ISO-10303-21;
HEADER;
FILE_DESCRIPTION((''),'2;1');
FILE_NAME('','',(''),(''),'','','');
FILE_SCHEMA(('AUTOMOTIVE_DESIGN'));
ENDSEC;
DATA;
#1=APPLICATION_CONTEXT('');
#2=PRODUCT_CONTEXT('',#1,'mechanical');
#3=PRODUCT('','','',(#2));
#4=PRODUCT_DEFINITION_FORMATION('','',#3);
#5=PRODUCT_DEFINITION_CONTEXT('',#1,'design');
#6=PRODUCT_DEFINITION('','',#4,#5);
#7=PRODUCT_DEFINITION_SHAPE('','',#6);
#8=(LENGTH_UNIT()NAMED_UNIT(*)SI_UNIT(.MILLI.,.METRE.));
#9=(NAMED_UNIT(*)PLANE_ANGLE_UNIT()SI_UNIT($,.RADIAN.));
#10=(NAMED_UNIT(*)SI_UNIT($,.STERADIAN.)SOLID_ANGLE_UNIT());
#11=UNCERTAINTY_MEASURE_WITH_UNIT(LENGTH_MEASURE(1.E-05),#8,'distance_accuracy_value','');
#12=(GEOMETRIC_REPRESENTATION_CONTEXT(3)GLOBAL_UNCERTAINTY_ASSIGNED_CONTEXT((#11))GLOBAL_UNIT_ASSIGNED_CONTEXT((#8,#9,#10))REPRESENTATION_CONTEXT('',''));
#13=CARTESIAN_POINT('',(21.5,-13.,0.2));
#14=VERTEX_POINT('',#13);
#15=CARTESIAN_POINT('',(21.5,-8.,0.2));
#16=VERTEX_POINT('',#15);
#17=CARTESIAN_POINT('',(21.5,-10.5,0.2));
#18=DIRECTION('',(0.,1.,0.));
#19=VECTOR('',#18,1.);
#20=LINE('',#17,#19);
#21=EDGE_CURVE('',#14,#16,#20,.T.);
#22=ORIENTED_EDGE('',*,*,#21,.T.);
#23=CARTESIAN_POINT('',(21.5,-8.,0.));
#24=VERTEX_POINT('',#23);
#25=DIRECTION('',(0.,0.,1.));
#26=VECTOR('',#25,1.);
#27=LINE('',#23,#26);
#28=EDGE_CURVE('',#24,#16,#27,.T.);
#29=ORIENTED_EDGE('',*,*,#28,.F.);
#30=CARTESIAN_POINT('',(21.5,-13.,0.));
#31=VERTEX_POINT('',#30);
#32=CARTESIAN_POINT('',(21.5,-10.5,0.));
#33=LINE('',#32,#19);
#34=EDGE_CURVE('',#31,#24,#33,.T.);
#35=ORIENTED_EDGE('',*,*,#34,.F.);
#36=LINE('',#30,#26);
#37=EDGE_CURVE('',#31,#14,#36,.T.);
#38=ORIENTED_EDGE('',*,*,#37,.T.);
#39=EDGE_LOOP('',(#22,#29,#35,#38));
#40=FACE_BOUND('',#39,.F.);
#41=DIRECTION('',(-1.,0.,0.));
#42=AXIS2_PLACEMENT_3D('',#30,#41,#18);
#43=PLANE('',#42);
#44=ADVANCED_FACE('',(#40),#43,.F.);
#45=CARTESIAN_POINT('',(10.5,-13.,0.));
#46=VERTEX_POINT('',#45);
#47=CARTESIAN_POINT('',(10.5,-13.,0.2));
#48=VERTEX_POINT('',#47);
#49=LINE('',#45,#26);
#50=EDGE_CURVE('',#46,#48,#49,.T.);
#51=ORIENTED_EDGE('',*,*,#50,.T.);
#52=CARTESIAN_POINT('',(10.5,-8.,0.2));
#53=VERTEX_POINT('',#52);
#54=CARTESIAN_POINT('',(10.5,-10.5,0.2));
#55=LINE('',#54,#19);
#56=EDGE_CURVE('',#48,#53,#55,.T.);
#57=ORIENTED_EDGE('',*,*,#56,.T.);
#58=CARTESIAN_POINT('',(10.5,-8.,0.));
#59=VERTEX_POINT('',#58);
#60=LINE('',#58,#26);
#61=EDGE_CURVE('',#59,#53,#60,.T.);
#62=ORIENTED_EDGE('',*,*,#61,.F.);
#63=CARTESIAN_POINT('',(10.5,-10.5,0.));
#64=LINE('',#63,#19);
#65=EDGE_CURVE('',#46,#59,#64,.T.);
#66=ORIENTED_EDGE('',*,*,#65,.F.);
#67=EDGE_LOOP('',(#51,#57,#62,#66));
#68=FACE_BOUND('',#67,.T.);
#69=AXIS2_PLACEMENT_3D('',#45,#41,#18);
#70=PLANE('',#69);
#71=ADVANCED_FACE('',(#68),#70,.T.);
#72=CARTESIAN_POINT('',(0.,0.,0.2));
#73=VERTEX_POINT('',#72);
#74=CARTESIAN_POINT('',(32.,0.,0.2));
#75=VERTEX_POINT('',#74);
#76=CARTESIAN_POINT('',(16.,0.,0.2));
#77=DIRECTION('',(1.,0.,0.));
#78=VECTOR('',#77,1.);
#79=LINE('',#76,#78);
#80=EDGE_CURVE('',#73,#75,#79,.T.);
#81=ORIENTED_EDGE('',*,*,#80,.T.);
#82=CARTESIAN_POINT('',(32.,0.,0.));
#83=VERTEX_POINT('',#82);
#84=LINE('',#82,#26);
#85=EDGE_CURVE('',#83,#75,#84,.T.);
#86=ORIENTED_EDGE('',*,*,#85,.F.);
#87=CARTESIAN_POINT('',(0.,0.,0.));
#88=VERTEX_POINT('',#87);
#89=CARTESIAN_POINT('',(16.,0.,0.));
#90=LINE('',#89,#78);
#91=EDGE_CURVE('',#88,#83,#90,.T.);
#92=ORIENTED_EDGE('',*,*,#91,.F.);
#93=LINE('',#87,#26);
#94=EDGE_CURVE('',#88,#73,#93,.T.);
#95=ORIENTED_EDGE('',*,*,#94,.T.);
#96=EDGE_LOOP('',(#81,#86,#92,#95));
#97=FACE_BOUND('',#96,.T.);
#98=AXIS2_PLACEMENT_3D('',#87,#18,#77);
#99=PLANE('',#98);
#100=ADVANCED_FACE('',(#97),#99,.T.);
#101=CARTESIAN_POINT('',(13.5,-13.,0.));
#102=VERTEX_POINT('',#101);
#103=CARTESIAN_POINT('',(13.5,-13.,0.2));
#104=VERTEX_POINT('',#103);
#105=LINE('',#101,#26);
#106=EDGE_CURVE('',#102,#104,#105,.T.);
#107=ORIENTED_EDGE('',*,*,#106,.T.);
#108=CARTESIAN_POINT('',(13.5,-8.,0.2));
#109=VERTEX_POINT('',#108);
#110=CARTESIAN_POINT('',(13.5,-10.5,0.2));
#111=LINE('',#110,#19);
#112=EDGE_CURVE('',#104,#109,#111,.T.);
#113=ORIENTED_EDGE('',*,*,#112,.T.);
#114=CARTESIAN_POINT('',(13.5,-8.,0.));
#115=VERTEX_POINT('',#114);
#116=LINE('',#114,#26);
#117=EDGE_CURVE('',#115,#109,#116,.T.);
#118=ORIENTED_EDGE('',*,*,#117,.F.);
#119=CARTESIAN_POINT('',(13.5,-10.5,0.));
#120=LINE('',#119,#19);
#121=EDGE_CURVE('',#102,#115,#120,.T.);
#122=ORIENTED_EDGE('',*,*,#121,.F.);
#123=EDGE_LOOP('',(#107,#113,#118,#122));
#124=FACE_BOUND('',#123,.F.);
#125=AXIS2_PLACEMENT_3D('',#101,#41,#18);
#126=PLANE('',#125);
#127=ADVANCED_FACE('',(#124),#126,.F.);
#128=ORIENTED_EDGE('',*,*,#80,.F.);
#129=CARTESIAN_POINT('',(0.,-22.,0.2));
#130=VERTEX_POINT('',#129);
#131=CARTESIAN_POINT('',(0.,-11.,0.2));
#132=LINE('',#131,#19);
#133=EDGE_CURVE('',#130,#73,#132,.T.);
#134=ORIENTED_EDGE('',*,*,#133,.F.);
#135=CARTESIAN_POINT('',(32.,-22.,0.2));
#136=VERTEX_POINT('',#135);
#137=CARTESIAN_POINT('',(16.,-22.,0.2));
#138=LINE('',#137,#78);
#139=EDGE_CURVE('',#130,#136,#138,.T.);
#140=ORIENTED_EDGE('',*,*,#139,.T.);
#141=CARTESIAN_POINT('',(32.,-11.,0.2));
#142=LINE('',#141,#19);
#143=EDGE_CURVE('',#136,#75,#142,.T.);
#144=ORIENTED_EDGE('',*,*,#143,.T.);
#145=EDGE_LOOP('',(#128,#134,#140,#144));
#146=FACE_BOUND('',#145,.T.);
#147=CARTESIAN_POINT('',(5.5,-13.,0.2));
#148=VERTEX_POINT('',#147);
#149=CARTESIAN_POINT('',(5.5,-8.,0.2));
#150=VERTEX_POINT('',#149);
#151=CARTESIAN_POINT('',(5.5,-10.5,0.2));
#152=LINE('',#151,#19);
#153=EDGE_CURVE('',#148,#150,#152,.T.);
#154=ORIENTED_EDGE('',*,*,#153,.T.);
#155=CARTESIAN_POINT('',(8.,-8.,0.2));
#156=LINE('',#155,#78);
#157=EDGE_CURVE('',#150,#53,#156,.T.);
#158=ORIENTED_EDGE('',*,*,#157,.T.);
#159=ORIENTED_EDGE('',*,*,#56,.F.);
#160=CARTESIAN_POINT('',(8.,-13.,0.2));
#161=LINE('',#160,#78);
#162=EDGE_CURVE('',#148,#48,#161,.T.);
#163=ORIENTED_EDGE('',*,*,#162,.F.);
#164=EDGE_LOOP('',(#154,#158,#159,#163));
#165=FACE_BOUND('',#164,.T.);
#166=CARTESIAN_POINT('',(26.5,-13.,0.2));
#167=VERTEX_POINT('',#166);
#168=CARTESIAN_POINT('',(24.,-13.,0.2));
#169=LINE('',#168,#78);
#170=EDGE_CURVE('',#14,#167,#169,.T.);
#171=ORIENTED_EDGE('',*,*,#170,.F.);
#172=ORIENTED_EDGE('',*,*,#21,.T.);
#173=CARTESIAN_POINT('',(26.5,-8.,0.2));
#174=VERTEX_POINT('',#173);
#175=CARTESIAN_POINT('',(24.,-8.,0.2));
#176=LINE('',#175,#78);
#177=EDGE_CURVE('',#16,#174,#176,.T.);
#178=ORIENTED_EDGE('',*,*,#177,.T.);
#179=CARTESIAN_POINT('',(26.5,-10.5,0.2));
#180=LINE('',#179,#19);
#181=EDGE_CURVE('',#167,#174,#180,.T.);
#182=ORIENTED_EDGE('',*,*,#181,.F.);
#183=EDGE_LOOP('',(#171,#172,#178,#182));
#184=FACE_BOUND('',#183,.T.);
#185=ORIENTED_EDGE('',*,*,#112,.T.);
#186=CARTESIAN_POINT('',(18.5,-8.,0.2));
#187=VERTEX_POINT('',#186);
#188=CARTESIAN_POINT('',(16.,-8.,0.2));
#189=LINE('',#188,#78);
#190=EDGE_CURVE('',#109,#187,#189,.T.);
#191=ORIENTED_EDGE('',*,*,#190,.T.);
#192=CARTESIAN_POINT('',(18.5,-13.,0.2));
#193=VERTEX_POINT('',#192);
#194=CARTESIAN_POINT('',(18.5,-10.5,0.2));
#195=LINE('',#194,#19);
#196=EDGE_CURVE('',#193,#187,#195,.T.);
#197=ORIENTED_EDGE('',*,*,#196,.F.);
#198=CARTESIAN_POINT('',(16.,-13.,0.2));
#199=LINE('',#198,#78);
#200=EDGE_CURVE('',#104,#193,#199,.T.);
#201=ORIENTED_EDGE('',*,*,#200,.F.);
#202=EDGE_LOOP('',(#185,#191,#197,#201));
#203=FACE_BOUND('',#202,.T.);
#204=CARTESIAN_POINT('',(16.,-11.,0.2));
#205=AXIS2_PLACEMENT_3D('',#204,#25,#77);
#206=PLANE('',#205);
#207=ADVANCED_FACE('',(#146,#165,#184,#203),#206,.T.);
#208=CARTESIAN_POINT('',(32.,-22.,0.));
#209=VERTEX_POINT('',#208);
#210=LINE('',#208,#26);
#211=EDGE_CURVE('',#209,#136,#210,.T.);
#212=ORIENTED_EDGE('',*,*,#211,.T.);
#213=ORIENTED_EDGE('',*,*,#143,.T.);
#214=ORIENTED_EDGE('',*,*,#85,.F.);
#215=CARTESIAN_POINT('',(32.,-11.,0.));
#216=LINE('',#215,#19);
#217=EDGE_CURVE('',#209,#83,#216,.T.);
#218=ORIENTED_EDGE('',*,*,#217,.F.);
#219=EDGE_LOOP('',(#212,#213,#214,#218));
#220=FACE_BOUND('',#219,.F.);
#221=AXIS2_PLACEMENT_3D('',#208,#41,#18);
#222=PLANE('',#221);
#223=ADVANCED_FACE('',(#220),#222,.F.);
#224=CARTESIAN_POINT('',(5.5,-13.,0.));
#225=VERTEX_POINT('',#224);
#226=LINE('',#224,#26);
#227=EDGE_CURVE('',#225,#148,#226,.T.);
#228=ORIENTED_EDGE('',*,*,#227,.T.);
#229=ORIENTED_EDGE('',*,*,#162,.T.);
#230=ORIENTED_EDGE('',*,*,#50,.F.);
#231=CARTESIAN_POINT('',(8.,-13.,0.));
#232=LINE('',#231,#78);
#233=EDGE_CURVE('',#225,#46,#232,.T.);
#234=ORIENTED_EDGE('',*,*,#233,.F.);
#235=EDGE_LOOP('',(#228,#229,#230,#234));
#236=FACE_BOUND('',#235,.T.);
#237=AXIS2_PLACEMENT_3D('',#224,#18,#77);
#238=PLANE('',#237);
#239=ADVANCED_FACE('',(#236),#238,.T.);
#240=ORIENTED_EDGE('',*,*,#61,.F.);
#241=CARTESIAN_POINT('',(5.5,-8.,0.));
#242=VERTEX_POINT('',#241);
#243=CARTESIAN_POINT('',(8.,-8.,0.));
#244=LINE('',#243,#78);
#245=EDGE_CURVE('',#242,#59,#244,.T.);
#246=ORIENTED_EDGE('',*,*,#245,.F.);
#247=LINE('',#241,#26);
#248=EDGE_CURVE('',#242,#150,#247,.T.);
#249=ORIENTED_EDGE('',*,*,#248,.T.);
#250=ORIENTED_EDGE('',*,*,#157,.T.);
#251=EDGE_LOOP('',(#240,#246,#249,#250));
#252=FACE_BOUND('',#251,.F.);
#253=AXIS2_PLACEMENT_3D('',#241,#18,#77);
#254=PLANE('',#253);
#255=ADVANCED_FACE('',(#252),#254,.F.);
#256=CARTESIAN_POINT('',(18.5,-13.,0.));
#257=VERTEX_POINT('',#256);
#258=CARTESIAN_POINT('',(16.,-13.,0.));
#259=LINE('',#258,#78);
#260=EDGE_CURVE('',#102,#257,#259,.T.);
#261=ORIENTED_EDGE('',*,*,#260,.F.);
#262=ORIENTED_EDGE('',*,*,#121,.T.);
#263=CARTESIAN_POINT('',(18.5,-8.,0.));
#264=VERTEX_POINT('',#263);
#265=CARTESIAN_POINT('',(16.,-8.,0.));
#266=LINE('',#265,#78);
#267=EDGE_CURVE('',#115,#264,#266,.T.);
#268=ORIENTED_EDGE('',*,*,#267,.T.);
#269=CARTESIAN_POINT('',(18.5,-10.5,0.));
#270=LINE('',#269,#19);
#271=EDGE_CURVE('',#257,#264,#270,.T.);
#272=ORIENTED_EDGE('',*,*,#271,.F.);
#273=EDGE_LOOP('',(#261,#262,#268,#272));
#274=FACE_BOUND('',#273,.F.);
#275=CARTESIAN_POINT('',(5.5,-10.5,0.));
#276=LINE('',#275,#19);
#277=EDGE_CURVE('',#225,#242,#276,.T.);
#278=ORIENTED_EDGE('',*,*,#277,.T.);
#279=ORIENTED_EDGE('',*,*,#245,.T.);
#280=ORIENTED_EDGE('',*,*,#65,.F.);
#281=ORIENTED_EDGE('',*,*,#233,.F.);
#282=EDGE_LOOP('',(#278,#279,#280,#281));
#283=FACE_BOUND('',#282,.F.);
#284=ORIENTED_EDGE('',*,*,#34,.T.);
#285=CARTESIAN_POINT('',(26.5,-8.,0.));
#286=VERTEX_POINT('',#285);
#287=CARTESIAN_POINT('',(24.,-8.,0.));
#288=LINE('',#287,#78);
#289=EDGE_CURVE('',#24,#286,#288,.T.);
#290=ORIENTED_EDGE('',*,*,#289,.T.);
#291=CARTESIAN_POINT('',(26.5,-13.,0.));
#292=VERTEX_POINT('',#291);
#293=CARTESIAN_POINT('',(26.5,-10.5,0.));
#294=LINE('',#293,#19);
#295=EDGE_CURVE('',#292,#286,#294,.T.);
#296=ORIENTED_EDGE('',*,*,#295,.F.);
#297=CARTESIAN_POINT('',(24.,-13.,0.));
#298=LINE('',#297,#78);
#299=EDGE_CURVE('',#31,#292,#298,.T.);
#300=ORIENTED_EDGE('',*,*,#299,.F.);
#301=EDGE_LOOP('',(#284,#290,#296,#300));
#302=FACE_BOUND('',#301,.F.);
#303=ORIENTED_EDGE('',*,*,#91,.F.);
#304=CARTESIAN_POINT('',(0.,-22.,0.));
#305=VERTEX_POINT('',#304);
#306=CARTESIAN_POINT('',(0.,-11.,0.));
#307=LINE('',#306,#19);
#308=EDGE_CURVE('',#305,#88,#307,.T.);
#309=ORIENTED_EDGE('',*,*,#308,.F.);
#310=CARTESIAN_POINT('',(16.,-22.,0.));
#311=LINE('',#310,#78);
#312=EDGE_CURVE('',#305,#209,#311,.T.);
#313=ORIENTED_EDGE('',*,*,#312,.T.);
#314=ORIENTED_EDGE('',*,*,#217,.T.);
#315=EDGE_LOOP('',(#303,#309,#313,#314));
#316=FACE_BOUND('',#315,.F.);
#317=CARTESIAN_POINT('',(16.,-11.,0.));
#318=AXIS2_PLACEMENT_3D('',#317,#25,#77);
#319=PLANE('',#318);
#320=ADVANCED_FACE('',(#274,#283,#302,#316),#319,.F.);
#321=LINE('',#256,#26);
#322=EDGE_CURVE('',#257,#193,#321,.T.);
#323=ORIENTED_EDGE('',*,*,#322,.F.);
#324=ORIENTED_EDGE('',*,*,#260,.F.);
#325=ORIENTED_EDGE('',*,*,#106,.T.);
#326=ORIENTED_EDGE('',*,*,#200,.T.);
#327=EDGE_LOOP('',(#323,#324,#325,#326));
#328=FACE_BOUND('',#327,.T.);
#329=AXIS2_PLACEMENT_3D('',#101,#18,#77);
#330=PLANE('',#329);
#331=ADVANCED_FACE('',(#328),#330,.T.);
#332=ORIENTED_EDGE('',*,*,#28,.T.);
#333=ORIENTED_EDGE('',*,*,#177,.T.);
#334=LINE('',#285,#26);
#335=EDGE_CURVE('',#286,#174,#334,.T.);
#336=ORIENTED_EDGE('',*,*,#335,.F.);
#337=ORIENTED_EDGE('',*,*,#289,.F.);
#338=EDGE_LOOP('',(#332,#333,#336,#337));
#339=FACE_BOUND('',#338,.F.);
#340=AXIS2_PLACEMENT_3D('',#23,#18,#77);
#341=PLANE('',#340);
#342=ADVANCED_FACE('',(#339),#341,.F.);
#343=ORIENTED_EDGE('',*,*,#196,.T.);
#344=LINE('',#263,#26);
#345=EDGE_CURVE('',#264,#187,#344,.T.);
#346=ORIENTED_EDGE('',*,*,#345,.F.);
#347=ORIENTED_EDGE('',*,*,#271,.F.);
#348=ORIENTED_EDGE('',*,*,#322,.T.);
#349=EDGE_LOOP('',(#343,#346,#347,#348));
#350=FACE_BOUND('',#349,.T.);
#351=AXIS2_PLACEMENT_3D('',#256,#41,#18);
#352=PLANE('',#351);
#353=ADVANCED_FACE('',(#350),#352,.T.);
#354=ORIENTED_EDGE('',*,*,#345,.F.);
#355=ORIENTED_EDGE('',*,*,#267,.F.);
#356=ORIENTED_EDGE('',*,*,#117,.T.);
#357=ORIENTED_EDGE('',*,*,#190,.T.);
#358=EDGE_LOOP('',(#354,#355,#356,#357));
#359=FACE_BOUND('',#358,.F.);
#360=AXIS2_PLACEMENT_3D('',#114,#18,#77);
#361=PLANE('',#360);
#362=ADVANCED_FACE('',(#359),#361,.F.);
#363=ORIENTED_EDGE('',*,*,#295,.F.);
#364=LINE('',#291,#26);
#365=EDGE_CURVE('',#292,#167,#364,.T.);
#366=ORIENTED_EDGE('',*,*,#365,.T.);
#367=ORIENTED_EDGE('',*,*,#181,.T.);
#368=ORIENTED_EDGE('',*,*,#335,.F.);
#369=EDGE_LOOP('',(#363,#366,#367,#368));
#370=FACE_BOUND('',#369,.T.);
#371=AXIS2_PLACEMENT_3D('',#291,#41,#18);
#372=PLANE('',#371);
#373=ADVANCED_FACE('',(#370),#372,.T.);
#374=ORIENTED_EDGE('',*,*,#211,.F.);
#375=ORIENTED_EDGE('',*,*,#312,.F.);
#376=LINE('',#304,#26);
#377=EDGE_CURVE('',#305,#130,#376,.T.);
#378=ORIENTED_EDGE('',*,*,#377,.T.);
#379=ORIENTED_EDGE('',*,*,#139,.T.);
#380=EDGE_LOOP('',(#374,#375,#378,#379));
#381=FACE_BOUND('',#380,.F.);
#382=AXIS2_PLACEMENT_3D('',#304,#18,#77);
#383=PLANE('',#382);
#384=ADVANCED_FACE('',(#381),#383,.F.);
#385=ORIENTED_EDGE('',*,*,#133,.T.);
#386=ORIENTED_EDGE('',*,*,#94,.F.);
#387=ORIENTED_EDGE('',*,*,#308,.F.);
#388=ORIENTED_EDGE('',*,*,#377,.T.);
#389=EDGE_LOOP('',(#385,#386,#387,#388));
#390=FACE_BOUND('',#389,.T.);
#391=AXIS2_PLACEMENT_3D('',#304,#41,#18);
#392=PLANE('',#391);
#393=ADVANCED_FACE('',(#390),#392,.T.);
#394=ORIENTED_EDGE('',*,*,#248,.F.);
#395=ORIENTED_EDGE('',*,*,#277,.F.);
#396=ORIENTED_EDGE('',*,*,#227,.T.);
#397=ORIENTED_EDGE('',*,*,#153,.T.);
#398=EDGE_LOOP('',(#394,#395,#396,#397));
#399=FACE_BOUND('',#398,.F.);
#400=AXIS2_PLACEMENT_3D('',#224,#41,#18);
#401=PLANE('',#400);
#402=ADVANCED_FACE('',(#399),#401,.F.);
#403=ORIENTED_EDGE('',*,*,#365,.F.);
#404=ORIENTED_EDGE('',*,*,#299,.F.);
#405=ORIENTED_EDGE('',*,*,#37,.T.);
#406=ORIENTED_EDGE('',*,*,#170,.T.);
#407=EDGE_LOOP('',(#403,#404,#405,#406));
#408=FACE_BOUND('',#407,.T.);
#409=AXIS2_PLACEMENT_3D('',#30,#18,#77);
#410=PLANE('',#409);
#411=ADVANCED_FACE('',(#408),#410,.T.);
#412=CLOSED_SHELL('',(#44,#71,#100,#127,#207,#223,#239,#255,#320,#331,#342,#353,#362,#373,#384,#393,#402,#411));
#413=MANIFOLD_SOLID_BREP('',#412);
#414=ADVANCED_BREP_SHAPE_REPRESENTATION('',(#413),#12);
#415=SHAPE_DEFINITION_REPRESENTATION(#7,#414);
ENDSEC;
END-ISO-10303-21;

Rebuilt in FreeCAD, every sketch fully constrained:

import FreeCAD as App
import Part
import Sketcher

V = App.Vector
Q = App.Units.Quantity

doc = App.newDocument("Part")
params = doc.addObject("Spreadsheet::Sheet", "Params")
for row, (alias, value) in enumerate([
    ("sketch1_width", "32 mm"),
    ("sketch1_width2", "5 mm"),
    ("sketch1_height", "22 mm"),
    ("pad1_length", "0.2 mm"),
], start=1):
    params.set(f"A{row}", alias)
    params.set(f"B{row}", "=" + value)
    params.setAlias(f"B{row}", alias)

body = doc.addObject("PartDesign::Body", "Body")

# Sketch on XY plane
sketch1 = body.newObject("Sketcher::SketchObject", "Sketch")
sketch1.AttachmentSupport = (doc.getObject("XY_Plane"), [""])
sketch1.MapMode = "FlatFace"
sketch1.addGeometry(Part.LineSegment(V(0, 0, 0), V(0, -22, 0)), False)
sketch1.addGeometry(Part.LineSegment(V(0, -22, 0), V(32, -22, 0)), False)
sketch1.addGeometry(Part.LineSegment(V(32, -22, 0), V(32, 0, 0)), False)
sketch1.addGeometry(Part.LineSegment(V(32, 0, 0), V(0, 0, 0)), False)
sketch1.addGeometry(Part.LineSegment(V(10, -13, 0), V(6, -13, 0)), False)
sketch1.addGeometry(Part.LineSegment(V(6, -13, 0), V(6, -8, 0)), False)
sketch1.addGeometry(Part.LineSegment(V(6, -8, 0), V(10, -8, 0)), False)
sketch1.addGeometry(Part.LineSegment(V(10, -8, 0), V(10, -13, 0)), False)
sketch1.addGeometry(Part.LineSegment(V(18, -13, 0), V(14, -13, 0)), False)
sketch1.addGeometry(Part.LineSegment(V(14, -13, 0), V(14, -8, 0)), False)
sketch1.addGeometry(Part.LineSegment(V(14, -8, 0), V(18, -8, 0)), False)
sketch1.addGeometry(Part.LineSegment(V(18, -8, 0), V(18, -13, 0)), False)
sketch1.addGeometry(Part.LineSegment(V(26, -13, 0), V(22, -13, 0)), False)
sketch1.addGeometry(Part.LineSegment(V(22, -13, 0), V(22, -8, 0)), False)
sketch1.addGeometry(Part.LineSegment(V(22, -8, 0), V(26, -8, 0)), False)
sketch1.addGeometry(Part.LineSegment(V(26, -8, 0), V(26, -13, 0)), False)
sketch1.addConstraint(Sketcher.Constraint("Coincident", 0, 2, 1, 1))
sketch1.addConstraint(Sketcher.Constraint("Coincident", 1, 2, 2, 1))
sketch1.addConstraint(Sketcher.Constraint("Coincident", 2, 2, 3, 1))
sketch1.addConstraint(Sketcher.Constraint("Coincident", 3, 2, 0, 1))
sketch1.addConstraint(Sketcher.Constraint("Coincident", 4, 2, 5, 1))
sketch1.addConstraint(Sketcher.Constraint("Coincident", 5, 2, 6, 1))
sketch1.addConstraint(Sketcher.Constraint("Coincident", 6, 2, 7, 1))
sketch1.addConstraint(Sketcher.Constraint("Coincident", 7, 2, 4, 1))
sketch1.addConstraint(Sketcher.Constraint("Coincident", 8, 2, 9, 1))
sketch1.addConstraint(Sketcher.Constraint("Coincident", 9, 2, 10, 1))
sketch1.addConstraint(Sketcher.Constraint("Coincident", 10, 2, 11, 1))
sketch1.addConstraint(Sketcher.Constraint("Coincident", 11, 2, 8, 1))
sketch1.addConstraint(Sketcher.Constraint("Coincident", 12, 2, 13, 1))
sketch1.addConstraint(Sketcher.Constraint("Coincident", 13, 2, 14, 1))
sketch1.addConstraint(Sketcher.Constraint("Coincident", 14, 2, 15, 1))
sketch1.addConstraint(Sketcher.Constraint("Coincident", 15, 2, 12, 1))
sketch1.addConstraint(Sketcher.Constraint("Vertical", 0))
sketch1.addConstraint(Sketcher.Constraint("Horizontal", 1))
sketch1.addConstraint(Sketcher.Constraint("Vertical", 2))
sketch1.addConstraint(Sketcher.Constraint("Horizontal", 3))
sketch1.addConstraint(Sketcher.Constraint("Horizontal", 4))
sketch1.addConstraint(Sketcher.Constraint("Vertical", 5))
sketch1.addConstraint(Sketcher.Constraint("Horizontal", 6))
sketch1.addConstraint(Sketcher.Constraint("Vertical", 7))
sketch1.addConstraint(Sketcher.Constraint("Horizontal", 8))
sketch1.addConstraint(Sketcher.Constraint("Vertical", 9))
sketch1.addConstraint(Sketcher.Constraint("Horizontal", 10))
sketch1.addConstraint(Sketcher.Constraint("Vertical", 11))
sketch1.addConstraint(Sketcher.Constraint("Horizontal", 12))
sketch1.addConstraint(Sketcher.Constraint("Vertical", 13))
sketch1.addConstraint(Sketcher.Constraint("Horizontal", 14))
sketch1.addConstraint(Sketcher.Constraint("Vertical", 15))
sketch1.addConstraint(Sketcher.Constraint("Coincident", 3, 2, -1, 1))
sketch1.addConstraint(Sketcher.Constraint("Horizontal", 7, 2, 8, 2))
sketch1.addConstraint(Sketcher.Constraint("Horizontal", 6, 2, 9, 2))
sketch1.addConstraint(Sketcher.Constraint("Horizontal", 11, 2, 12, 2))
sketch1.addConstraint(Sketcher.Constraint("Horizontal", 10, 2, 13, 2))
sketch1.addConstraint(Sketcher.Constraint("Equal", 6, 8))
sketch1.addConstraint(Sketcher.Constraint("Equal", 10, 12))
sketch1.addConstraint(Sketcher.Constraint("Equal", 14, 5))
sketch1.addConstraint(Sketcher.Constraint("DistanceX", 1, 1, 1, 2, Q("32 mm")))
sketch1.addConstraint(Sketcher.Constraint("DistanceX", 4, 2, 4, 1, Q("5 mm")))
sketch1.addConstraint(Sketcher.Constraint("DistanceY", 0, 2, 0, 1, Q("22 mm")))
sketch1.addConstraint(Sketcher.Constraint("DistanceY", 4, 2, -1, 1, Q("13 mm")))
sketch1.addConstraint(Sketcher.Constraint("DistanceX", 7, 2, 8, 2, Q("3 mm")))
sketch1.addConstraint(Sketcher.Constraint("DistanceX", 11, 2, 12, 2, Q("3 mm")))
sketch1.addConstraint(Sketcher.Constraint("DistanceX", -1, 1, 4, 2, Q("5.5 mm")))
sketch1.setExpression("Constraints[40]", "Params.sketch1_width")
sketch1.setExpression("Constraints[41]", "Params.sketch1_width2")
sketch1.setExpression("Constraints[42]", "Params.sketch1_height")
pad1 = body.newObject("PartDesign::Pad", "Pad")
pad1.Profile = sketch1
pad1.setExpression("Length", "Params.pad1_length")

doc.recompute()
